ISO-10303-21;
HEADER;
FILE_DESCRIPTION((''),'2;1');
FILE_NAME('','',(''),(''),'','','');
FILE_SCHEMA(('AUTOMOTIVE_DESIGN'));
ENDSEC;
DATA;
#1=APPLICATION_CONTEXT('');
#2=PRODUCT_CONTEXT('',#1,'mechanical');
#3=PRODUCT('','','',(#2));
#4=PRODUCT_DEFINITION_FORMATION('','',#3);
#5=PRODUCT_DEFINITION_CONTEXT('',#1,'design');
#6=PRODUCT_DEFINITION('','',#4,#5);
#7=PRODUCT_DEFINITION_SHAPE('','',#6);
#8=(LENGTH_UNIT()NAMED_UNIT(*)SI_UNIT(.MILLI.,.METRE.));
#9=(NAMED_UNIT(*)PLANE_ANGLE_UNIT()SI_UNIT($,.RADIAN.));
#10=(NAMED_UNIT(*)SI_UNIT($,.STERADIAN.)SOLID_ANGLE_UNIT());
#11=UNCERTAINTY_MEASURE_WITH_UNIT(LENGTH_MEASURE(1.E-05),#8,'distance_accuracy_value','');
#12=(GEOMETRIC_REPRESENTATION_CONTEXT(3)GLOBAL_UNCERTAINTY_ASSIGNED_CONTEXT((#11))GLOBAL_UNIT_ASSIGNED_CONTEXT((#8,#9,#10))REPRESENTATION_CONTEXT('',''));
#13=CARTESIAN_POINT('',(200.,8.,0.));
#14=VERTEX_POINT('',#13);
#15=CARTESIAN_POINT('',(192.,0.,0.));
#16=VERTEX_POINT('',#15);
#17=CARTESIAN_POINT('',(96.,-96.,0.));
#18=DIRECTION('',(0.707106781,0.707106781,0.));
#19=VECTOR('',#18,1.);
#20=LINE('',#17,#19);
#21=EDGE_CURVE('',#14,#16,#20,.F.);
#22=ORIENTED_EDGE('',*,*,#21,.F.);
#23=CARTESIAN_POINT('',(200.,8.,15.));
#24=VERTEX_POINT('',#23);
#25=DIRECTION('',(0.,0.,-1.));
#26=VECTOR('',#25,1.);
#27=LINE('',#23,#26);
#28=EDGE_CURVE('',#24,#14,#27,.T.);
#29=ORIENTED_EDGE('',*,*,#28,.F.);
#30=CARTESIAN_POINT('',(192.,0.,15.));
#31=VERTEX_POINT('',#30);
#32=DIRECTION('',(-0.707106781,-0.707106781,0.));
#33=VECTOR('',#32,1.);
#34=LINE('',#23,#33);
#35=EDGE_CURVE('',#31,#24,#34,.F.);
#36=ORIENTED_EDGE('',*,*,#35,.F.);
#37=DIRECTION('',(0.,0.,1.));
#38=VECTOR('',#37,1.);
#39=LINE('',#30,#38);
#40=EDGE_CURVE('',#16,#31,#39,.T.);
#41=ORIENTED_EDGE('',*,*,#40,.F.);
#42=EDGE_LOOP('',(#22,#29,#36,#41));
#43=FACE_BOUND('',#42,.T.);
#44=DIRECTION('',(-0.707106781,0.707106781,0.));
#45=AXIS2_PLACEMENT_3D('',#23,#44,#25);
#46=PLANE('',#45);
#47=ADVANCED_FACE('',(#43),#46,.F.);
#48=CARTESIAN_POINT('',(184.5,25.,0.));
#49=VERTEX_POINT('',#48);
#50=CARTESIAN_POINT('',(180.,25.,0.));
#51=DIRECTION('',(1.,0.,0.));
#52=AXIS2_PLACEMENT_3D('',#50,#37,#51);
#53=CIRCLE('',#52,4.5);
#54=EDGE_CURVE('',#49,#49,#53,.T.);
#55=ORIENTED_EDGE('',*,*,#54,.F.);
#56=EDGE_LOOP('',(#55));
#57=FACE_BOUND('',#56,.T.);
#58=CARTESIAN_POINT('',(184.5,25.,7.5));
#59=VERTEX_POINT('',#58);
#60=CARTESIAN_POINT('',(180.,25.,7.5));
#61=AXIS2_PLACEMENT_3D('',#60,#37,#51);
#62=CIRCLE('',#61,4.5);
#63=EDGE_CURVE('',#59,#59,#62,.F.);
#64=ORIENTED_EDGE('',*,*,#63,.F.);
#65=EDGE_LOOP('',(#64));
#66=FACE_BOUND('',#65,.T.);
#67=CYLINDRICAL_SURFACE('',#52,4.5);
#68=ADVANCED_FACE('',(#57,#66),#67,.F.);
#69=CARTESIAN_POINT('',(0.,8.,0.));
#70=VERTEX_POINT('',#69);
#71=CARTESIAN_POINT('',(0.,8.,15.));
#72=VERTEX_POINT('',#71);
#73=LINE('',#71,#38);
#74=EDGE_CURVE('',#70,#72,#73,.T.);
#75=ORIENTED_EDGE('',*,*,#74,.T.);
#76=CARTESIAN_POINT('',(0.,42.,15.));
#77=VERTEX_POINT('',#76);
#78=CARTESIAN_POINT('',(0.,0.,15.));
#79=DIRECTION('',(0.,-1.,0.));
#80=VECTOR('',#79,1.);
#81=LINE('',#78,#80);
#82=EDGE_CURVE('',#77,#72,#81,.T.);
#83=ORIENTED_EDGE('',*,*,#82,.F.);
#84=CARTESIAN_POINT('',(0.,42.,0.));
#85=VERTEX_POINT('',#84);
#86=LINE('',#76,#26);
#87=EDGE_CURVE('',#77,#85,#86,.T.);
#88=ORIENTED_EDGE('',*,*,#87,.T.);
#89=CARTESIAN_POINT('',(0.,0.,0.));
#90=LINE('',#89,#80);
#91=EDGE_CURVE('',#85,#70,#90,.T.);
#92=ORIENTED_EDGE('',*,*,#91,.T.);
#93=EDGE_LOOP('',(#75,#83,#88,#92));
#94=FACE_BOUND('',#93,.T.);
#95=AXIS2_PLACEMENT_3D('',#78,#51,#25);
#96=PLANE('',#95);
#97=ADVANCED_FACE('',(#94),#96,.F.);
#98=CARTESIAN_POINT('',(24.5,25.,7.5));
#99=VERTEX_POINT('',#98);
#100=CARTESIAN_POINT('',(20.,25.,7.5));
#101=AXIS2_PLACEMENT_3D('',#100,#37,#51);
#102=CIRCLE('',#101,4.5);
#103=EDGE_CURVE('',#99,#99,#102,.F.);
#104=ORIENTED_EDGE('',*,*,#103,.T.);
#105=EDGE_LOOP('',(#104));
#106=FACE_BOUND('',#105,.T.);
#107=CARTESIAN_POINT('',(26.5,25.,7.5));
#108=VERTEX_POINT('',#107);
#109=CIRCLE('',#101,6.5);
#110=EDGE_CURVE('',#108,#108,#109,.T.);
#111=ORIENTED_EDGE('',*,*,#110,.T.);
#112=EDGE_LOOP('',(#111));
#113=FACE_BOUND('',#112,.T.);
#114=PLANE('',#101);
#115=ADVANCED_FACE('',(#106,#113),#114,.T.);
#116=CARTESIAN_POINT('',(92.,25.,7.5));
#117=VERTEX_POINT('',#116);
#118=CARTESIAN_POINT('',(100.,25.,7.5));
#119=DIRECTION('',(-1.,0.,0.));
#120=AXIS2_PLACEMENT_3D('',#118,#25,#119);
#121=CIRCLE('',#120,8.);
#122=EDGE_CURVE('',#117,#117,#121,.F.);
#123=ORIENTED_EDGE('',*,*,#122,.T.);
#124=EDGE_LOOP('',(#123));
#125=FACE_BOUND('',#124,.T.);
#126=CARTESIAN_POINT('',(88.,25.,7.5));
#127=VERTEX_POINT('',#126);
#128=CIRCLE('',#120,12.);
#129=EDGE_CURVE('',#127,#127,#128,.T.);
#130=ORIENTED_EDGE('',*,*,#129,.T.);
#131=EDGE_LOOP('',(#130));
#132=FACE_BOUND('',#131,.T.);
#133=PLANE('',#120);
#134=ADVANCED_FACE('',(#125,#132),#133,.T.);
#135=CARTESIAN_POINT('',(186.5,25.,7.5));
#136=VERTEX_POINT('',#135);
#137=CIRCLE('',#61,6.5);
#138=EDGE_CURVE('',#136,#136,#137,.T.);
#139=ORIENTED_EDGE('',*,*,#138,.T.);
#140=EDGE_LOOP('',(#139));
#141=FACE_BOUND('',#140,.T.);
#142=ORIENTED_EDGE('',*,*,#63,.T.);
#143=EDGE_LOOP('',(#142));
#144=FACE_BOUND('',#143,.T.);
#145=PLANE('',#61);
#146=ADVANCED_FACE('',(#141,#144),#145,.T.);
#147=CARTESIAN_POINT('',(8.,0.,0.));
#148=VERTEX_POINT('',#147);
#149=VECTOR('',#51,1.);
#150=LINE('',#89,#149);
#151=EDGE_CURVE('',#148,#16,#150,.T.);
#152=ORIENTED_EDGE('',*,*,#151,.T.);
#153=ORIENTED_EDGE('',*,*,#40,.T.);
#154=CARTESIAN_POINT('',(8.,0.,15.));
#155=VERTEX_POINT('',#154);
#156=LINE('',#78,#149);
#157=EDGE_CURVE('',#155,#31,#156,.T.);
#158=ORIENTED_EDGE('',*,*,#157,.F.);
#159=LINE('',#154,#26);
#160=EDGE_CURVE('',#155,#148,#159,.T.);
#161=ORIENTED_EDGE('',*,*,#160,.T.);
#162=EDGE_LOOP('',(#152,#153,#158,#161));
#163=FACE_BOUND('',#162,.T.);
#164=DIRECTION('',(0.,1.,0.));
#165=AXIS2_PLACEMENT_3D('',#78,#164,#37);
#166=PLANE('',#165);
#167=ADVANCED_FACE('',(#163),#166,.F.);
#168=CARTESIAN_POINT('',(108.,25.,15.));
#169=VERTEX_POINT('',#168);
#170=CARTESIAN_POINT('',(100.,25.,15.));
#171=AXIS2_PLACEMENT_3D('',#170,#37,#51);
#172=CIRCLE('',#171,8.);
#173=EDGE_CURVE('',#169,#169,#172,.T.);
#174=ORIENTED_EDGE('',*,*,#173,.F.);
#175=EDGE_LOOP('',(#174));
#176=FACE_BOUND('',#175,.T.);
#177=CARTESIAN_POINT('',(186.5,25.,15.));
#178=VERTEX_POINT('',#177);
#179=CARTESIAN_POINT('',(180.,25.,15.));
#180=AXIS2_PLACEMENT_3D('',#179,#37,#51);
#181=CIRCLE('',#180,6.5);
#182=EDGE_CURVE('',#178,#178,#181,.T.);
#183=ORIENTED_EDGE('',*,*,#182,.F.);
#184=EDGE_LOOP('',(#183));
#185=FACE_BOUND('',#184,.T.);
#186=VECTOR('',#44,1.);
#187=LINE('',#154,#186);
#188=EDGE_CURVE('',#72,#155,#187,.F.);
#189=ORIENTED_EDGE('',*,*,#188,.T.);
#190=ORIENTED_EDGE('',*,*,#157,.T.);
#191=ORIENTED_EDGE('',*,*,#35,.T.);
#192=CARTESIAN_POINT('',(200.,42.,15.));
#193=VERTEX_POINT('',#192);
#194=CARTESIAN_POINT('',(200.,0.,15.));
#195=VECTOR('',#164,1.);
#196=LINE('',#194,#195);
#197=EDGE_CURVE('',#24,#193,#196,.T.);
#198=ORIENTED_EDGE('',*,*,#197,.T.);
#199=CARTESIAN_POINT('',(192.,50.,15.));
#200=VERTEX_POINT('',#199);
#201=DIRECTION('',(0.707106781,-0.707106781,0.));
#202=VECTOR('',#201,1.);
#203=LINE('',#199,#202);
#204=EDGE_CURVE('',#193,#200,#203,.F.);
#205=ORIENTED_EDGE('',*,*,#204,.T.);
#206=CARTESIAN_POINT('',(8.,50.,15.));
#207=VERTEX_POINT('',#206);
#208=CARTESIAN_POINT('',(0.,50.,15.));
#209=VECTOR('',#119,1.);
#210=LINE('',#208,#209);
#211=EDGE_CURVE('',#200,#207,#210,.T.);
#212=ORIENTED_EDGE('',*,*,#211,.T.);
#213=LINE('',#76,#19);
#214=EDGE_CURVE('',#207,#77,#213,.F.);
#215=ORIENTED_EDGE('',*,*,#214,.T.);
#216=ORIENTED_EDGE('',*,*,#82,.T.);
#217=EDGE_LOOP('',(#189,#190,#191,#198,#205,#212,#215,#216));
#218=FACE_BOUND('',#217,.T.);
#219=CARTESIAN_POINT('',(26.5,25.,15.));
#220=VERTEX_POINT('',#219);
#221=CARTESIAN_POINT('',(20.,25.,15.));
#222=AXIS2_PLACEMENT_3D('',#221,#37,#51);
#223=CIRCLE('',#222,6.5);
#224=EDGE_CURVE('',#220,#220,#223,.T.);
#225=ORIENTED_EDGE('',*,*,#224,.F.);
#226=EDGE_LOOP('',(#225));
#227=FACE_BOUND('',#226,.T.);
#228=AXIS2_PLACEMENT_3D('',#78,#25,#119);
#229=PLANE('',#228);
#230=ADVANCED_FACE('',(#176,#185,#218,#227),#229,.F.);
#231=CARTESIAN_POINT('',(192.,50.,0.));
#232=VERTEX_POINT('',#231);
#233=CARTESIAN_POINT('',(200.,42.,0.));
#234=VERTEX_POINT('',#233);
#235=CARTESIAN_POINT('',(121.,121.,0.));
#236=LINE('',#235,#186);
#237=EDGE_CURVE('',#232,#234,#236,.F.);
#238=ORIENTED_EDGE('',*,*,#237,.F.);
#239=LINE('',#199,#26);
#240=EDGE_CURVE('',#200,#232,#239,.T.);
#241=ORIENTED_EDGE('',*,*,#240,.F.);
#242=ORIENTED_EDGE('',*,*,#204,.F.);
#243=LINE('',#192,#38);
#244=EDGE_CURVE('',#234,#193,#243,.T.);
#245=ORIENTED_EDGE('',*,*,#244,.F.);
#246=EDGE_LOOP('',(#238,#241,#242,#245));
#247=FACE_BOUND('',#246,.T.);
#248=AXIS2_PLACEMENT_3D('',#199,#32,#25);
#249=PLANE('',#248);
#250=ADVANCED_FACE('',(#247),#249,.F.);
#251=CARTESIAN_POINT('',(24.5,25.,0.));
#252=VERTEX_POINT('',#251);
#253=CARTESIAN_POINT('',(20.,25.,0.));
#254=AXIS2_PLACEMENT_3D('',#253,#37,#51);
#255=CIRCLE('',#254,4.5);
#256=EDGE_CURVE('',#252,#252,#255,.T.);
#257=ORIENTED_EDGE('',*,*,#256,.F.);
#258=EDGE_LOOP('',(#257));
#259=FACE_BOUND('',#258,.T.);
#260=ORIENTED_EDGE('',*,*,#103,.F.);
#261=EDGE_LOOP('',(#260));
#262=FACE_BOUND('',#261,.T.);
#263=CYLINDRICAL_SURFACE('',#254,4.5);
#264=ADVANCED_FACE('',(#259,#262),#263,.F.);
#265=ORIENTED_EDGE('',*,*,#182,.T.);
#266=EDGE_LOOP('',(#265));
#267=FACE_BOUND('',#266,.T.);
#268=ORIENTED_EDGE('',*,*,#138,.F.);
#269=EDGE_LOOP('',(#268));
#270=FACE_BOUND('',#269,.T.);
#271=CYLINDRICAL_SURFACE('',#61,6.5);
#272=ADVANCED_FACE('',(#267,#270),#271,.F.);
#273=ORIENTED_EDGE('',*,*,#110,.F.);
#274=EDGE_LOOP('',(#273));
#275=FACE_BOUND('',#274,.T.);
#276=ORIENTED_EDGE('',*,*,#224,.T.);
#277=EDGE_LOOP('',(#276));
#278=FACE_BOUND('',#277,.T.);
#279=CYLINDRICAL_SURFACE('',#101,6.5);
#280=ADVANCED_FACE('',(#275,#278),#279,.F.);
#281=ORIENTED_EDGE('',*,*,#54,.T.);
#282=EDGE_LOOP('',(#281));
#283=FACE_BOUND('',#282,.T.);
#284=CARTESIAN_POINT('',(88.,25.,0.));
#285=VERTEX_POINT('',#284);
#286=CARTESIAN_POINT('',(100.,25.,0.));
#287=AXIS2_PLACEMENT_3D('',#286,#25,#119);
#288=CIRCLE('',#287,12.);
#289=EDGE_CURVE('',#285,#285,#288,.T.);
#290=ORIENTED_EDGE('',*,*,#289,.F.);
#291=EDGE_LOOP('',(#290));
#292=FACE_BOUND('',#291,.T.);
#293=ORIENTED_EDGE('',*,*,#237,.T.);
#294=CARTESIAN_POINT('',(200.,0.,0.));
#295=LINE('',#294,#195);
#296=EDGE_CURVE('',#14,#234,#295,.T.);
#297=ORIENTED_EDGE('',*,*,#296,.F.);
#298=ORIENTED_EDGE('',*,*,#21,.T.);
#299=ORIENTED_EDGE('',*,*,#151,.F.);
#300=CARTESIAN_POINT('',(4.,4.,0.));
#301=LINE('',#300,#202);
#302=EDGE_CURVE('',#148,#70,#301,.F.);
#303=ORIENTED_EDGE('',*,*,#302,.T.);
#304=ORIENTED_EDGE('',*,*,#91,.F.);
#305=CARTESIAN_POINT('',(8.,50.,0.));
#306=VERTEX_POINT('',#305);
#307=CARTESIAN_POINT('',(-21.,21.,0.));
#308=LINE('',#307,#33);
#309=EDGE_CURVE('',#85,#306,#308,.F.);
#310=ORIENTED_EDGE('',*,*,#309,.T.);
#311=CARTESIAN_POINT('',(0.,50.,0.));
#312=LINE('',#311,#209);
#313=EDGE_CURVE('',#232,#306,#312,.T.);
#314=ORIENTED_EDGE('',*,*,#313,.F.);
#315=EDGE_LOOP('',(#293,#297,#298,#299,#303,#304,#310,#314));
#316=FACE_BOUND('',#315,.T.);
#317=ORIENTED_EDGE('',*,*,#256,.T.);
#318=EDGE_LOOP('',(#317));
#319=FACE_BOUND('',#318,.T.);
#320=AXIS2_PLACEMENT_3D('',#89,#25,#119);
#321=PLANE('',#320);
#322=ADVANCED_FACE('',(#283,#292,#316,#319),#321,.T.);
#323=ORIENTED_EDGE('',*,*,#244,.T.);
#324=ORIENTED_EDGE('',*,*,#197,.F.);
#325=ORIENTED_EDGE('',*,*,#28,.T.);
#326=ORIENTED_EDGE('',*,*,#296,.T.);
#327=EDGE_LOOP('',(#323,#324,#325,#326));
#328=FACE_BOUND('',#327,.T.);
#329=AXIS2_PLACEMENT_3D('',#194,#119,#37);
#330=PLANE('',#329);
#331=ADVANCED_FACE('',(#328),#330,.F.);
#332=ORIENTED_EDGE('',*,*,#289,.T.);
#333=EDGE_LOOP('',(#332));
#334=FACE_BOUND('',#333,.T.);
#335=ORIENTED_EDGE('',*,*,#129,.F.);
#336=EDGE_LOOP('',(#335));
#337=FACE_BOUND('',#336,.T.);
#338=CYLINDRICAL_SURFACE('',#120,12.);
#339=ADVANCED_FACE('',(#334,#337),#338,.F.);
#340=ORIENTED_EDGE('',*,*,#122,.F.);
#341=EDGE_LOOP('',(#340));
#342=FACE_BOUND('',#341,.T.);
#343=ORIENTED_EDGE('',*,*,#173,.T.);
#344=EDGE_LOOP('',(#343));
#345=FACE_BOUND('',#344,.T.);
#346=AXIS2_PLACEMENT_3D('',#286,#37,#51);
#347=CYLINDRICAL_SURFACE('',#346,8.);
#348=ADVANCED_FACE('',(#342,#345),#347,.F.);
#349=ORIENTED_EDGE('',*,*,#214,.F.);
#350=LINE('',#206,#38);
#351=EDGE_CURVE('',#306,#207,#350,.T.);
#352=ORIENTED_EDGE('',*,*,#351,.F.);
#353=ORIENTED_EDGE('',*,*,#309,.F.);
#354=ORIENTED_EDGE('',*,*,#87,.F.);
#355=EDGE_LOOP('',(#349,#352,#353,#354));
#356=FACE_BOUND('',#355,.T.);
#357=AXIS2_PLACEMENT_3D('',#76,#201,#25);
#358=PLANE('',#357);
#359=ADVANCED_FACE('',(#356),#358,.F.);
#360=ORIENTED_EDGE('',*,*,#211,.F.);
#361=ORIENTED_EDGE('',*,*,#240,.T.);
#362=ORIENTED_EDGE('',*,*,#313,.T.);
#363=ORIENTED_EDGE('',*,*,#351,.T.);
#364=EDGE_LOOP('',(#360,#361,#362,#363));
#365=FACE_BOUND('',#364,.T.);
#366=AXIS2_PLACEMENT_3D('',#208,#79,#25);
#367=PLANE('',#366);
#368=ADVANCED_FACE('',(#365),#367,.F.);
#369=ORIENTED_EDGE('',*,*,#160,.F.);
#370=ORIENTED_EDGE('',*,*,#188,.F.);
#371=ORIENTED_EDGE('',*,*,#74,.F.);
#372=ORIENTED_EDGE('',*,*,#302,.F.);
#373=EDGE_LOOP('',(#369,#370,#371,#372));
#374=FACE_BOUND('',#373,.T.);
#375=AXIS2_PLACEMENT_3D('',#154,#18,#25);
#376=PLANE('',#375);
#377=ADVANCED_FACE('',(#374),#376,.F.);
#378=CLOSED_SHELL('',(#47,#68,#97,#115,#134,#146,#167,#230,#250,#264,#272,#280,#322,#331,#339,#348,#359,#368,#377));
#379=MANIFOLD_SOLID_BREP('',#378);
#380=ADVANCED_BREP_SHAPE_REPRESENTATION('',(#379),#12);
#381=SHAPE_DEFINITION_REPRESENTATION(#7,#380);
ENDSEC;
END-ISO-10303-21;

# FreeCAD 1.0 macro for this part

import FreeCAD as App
import Part
import Sketcher


def edges_at(feature, points):
    """Names of the edges that pass closest to the given points."""
    edges = feature.Shape.Edges
    near = lambda p: min(range(len(edges)), key=lambda i: edges[i].distToShape(Part.Vertex(*p))[0])
    return sorted({f"Edge{near(p) + 1}" for p in points})


def add_polygon(sketch, points):
    """Adds a closed chain of lines whose ends are joined by coincident constraints."""
    first, n = sketch.GeometryCount, len(points)
    for a, b in zip(points, points[1:] + points[:1]):
        sketch.addGeometry(Part.LineSegment(App.Vector(*a, 0), App.Vector(*b, 0)), False)
    for i in range(n):
        sketch.addConstraint(Sketcher.Constraint("Coincident", first + i, 2, first + (i + 1) % n, 1))

doc = App.newDocument("Part")
body = doc.addObject("PartDesign::Body", "Body")

# Sketch on XY plane
sketch1 = doc.addObject("Sketcher::SketchObject", "Sketch")
body.addObject(sketch1)
sketch1.AttachmentSupport = (doc.XY_Plane, [""])
sketch1.MapMode = "FlatFace"
add_polygon(sketch1, [(0, 50), (0, 0), (200, 0), (200, 50)])  # lines 0-3
sketch1.addConstraint(Sketcher.Constraint("Vertical", 0))
sketch1.addConstraint(Sketcher.Constraint("Horizontal", 1))
sketch1.addConstraint(Sketcher.Constraint("Vertical", 2))
sketch1.addConstraint(Sketcher.Constraint("Horizontal", 3))
sketch1.addConstraint(Sketcher.Constraint("Coincident", 0, 2, -1, 1))
sketch1.addConstraint(Sketcher.Constraint("DistanceX", 1, 1, 1, 2, 200.0))
sketch1.addConstraint(Sketcher.Constraint("DistanceY", 0, 2, 0, 1, 50.0))
pad1 = doc.addObject("PartDesign::Pad", "Pad")
body.addObject(pad1)
pad1.Profile = sketch1
pad1.Length = 15

# Sketch on XY plane
sketch2 = doc.addObject("Sketcher::SketchObject", "Sketch001")
body.addObject(sketch2)
sketch2.AttachmentSupport = (doc.XY_Plane, [""])
sketch2.MapMode = "FlatFace"
sketch2.AttachmentOffset = App.Placement(App.Vector(0, 0, 15), App.Rotation())
sketch2.addGeometry(Part.Circle(App.Vector(20, 25, 0), App.Vector(0, 0, 1), 4.5), False)
sketch2.addGeometry(Part.Circle(App.Vector(100, 25, 0), App.Vector(0, 0, 1), 8), False)
sketch2.addGeometry(Part.Circle(App.Vector(180, 25, 0), App.Vector(0, 0, 1), 4.5), False)
sketch2.addConstraint(Sketcher.Constraint("Equal", 0, 2))
sketch2.addConstraint(Sketcher.Constraint("Horizontal", 0, 3, 1, 3))
sketch2.addConstraint(Sketcher.Constraint("Horizontal", 1, 3, 2, 3))
sketch2.addConstraint(Sketcher.Constraint("Diameter", 0, 9.0))
sketch2.addConstraint(Sketcher.Constraint("Diameter", 1, 16.0))
sketch2.addConstraint(Sketcher.Constraint("DistanceX", -1, 1, 0, 3, 20.0))
sketch2.addConstraint(Sketcher.Constraint("DistanceY", -1, 1, 0, 3, 25.0))
sketch2.addConstraint(Sketcher.Constraint("DistanceX", -1, 1, 1, 3, 100.0))
sketch2.addConstraint(Sketcher.Constraint("DistanceX", -1, 1, 2, 3, 180.0))
pocket1 = doc.addObject("PartDesign::Pocket", "Pocket")
body.addObject(pocket1)
pocket1.Profile = sketch2
pocket1.Type = "ThroughAll"

# Sketch on XY plane
sketch3 = doc.addObject("Sketcher::SketchObject", "Sketch002")
body.addObject(sketch3)
sketch3.AttachmentSupport = (doc.XY_Plane, [""])
sketch3.MapMode = "FlatFace"
sketch3.AttachmentOffset = App.Placement(App.Vector(0, 0, 15), App.Rotation())
sketch3.addGeometry(Part.Circle(App.Vector(20, 25, 0), App.Vector(0, 0, 1), 6), False)
sketch3.addGeometry(Part.Circle(App.Vector(180, 25, 0), App.Vector(0, 0, 1), 6), False)
sketch3.addConstraint(Sketcher.Constraint("Equal", 0, 1))
sketch3.addConstraint(Sketcher.Constraint("Horizontal", 0, 3, 1, 3))
sketch3.addConstraint(Sketcher.Constraint("Diameter", 0, 13.0))
sketch3.addConstraint(Sketcher.Constraint("DistanceX", -1, 1, 0, 3, 20.0))
sketch3.addConstraint(Sketcher.Constraint("DistanceY", -1, 1, 0, 3, 25.0))
sketch3.addConstraint(Sketcher.Constraint("DistanceX", -1, 1, 1, 3, 180.0))
pocket2 = doc.addObject("PartDesign::Pocket", "Pocket001")
body.addObject(pocket2)
pocket2.Profile = sketch3
pocket2.Length = 7.5

# Sketch on XY plane
sketch4 = doc.addObject("Sketcher::SketchObject", "Sketch003")
body.addObject(sketch4)
sketch4.AttachmentSupport = (doc.XY_Plane, [""])
sketch4.MapMode = "FlatFace"
sketch4.addGeometry(Part.Circle(App.Vector(100, 25, 0), App.Vector(0, 0, 1), 12), False)
sketch4.addConstraint(Sketcher.Constraint("Diameter", 0, 24.0))
sketch4.addConstraint(Sketcher.Constraint("DistanceX", -1, 1, 0, 3, 100.0))
sketch4.addConstraint(Sketcher.Constraint("DistanceY", -1, 1, 0, 3, 25.0))
pocket3 = doc.addObject("PartDesign::Pocket", "Pocket002")
body.addObject(pocket3)
pocket3.Profile = sketch4
pocket3.Length = 7.5
pocket3.Reversed = True
doc.recompute()

chamfer = doc.addObject("PartDesign::Chamfer", "Chamfer")
body.addObject(chamfer)
chamfer.Base = (pocket3, edges_at(pocket3, [
    (0, 50, 7.5),
    (200, 50, 7.5),
    (200, 0, 7.5),
    (0, 0, 7.5),
]))
chamfer.Size = 8

doc.recompute()
